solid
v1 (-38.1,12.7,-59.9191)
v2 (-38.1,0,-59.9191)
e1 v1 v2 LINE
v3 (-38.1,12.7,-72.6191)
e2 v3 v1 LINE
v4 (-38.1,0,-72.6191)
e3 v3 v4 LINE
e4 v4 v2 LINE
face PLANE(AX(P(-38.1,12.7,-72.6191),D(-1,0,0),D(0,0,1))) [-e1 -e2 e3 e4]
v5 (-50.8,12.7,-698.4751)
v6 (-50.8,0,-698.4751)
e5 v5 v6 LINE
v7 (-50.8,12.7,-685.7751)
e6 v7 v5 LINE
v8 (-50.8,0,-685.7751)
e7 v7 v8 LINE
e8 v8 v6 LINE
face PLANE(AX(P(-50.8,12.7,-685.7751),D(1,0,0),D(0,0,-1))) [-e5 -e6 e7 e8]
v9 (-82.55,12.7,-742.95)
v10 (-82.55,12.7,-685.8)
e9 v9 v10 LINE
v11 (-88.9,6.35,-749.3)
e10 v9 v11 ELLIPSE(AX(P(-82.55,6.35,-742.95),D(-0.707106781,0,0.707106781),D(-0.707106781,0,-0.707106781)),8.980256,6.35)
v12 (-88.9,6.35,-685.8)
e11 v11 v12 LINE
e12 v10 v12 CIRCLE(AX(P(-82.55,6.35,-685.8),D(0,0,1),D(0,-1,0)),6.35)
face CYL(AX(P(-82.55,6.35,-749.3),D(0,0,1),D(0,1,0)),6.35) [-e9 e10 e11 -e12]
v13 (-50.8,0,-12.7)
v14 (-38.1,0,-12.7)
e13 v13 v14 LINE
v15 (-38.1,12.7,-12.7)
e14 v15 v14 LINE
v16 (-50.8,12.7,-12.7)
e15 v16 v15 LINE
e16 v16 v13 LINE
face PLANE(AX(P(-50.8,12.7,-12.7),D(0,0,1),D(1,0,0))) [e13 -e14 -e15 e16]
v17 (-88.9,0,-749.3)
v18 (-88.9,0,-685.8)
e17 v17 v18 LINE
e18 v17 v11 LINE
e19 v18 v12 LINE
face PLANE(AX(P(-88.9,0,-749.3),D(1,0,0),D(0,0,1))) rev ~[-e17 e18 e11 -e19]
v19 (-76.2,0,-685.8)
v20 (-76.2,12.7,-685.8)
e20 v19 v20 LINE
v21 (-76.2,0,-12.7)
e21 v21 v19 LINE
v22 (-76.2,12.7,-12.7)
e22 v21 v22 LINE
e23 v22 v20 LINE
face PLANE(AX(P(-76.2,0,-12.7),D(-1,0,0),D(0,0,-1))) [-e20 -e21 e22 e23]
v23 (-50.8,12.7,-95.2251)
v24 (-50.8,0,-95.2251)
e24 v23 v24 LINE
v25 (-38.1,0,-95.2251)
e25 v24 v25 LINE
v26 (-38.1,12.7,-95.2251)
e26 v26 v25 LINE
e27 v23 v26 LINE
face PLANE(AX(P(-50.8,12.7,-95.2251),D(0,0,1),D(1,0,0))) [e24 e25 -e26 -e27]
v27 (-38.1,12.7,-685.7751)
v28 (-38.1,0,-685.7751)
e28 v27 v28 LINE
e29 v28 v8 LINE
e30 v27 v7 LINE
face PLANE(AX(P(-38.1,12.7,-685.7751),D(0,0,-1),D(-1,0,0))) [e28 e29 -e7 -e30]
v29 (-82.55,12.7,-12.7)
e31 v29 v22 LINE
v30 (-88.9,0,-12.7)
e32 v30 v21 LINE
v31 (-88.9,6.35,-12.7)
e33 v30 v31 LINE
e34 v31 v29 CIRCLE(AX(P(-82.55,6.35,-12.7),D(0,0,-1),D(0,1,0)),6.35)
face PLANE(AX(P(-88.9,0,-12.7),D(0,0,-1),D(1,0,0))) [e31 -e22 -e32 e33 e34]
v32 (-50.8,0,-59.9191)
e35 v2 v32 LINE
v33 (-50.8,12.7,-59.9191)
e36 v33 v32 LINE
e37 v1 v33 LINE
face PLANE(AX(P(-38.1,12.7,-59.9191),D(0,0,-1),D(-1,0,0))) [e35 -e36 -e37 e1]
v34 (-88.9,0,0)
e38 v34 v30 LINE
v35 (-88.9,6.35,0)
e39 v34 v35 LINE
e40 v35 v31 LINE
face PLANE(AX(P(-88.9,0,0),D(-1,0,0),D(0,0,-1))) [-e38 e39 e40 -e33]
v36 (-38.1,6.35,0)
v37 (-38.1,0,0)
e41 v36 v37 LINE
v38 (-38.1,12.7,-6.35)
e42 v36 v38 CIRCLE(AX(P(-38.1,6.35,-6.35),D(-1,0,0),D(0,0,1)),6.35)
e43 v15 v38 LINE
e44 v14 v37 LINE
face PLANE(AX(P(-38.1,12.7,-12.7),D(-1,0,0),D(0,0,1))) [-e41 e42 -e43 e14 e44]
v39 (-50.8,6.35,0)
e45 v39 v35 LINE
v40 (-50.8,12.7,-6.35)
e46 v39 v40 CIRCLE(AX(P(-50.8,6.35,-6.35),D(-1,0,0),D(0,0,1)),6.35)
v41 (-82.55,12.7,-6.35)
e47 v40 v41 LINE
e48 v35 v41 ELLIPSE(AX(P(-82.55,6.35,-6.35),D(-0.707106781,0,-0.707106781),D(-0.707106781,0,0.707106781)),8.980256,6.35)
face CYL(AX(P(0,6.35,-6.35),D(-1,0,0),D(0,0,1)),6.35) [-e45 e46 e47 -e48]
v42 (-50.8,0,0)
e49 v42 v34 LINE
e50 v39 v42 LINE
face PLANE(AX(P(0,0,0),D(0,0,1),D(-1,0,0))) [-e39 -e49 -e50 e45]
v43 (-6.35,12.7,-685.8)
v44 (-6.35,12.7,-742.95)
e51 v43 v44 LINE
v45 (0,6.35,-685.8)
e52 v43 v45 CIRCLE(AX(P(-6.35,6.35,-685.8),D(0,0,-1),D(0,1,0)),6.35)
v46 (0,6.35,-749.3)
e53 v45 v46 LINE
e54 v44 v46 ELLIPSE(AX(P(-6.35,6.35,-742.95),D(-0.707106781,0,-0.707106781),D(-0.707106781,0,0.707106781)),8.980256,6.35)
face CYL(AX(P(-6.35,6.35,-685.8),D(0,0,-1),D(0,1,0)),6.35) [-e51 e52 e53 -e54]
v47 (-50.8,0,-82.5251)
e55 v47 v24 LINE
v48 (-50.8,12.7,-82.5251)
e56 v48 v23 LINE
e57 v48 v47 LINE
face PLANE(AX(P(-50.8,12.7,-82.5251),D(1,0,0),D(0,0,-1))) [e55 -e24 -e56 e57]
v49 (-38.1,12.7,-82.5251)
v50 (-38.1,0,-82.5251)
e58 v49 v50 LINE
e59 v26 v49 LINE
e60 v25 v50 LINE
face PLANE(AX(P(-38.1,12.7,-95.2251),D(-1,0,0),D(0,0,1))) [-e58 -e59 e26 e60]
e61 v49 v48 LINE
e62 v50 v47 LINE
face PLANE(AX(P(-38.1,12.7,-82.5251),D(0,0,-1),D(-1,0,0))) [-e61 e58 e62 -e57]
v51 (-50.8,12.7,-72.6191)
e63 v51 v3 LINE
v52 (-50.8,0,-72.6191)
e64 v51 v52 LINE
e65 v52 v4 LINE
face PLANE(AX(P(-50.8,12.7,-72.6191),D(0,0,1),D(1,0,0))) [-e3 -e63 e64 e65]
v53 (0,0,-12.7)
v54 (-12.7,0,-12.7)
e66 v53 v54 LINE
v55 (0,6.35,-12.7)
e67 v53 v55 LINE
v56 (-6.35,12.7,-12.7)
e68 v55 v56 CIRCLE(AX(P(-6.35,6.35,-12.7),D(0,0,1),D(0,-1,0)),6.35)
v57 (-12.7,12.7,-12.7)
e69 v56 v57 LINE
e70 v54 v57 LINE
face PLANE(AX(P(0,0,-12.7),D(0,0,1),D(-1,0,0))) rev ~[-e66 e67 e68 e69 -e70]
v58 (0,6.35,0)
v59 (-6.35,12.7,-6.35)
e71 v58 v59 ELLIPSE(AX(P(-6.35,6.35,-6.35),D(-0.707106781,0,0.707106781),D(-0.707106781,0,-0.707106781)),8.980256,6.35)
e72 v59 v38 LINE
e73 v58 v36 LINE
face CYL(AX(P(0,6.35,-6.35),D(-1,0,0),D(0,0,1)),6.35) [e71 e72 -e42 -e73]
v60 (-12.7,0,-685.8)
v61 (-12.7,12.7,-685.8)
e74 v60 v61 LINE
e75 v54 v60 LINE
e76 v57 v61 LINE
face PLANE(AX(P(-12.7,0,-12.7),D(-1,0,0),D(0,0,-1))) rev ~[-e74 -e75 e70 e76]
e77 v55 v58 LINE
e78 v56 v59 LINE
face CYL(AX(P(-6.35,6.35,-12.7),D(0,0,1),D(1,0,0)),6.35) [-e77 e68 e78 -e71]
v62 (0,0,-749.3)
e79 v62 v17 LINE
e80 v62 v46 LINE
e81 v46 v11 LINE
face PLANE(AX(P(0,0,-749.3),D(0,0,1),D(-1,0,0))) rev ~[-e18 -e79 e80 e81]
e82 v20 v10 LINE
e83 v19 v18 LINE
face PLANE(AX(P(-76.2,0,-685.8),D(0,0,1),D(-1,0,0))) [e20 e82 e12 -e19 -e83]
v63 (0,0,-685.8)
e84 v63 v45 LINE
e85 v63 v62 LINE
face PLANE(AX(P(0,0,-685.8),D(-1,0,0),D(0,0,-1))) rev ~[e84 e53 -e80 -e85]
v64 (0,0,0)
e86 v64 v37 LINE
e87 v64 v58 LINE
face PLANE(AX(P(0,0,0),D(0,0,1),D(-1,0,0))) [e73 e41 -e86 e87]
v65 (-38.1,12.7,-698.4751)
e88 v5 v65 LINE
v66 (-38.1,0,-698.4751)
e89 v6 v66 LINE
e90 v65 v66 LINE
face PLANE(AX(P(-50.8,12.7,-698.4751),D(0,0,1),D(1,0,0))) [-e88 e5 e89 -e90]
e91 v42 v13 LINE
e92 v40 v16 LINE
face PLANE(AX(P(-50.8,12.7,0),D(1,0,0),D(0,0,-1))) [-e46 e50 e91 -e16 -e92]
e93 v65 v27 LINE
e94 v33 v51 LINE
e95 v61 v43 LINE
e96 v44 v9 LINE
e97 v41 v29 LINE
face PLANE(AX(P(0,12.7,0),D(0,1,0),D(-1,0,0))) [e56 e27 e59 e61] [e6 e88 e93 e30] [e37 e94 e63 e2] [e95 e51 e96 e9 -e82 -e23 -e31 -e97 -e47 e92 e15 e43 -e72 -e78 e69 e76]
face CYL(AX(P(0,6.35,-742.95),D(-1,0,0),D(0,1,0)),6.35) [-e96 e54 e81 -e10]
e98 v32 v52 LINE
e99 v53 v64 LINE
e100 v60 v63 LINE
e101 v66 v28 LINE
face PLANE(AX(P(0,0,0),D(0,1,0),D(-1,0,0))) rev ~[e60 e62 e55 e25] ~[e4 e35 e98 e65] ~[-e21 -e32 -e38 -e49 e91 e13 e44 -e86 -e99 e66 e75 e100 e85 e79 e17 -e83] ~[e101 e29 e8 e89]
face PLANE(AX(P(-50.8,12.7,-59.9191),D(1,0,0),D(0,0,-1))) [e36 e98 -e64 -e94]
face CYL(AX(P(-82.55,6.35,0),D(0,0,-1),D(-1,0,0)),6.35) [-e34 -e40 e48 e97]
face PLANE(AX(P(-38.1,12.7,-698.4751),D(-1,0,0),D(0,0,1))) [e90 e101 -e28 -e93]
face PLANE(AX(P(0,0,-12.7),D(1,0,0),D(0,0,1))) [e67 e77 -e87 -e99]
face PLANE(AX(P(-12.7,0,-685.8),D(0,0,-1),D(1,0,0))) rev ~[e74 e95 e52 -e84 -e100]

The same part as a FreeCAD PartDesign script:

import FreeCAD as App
import Part
import Sketcher
from FreeCAD import Vector
Q = App.Units.Quantity


def edges_at(feature, points):
    """Names of the edges that pass closest to the given points."""
    edges = feature.Shape.Edges
    near = lambda p: min(range(len(edges)), key=lambda i: edges[i].distToShape(Part.Vertex(*p))[0])
    return sorted({f"Edge{near(p) + 1}" for p in points})

doc = App.newDocument("Part")
body = doc.addObject("PartDesign::Body", "Body")

# Sketch on XZ plane
sketch1 = body.newObject("Sketcher::SketchObject", "Sketch")
sketch1.AttachmentSupport = (doc.getObject("XZ_Plane"), [""])
sketch1.MapMode = "FlatFace"
sketch1.addGeometry(Part.LineSegment(Vector(-89, 0, 0), Vector(0, 0, 0)), False)
sketch1.addGeometry(Part.LineSegment(Vector(0, 0, 0), Vector(0, -13, 0)), False)
sketch1.addGeometry(Part.LineSegment(Vector(0, -13, 0), Vector(-13, -13, 0)), False)
sketch1.addGeometry(Part.LineSegment(Vector(-13, -13, 0), Vector(-13, -686, 0)), False)
sketch1.addGeometry(Part.LineSegment(Vector(-13, -686, 0), Vector(0, -686, 0)), False)
sketch1.addGeometry(Part.LineSegment(Vector(0, -686, 0), Vector(0, -749, 0)), False)
sketch1.addGeometry(Part.LineSegment(Vector(0, -749, 0), Vector(-89, -749, 0)), False)
sketch1.addGeometry(Part.LineSegment(Vector(-89, -749, 0), Vector(-89, -686, 0)), False)
sketch1.addGeometry(Part.LineSegment(Vector(-89, -686, 0), Vector(-76, -686, 0)), False)
sketch1.addGeometry(Part.LineSegment(Vector(-76, -686, 0), Vector(-76, -13, 0)), False)
sketch1.addGeometry(Part.LineSegment(Vector(-76, -13, 0), Vector(-89, -13, 0)), False)
sketch1.addGeometry(Part.LineSegment(Vector(-89, -13, 0), Vector(-89, 0, 0)), False)
sketch1.addConstraint(Sketcher.Constraint("Coincident", 0, 2, 1, 1))
sketch1.addConstraint(Sketcher.Constraint("Coincident", 1, 2, 2, 1))
sketch1.addConstraint(Sketcher.Constraint("Coincident", 2, 2, 3, 1))
sketch1.addConstraint(Sketcher.Constraint("Coincident", 3, 2, 4, 1))
sketch1.addConstraint(Sketcher.Constraint("Coincident", 4, 2, 5, 1))
sketch1.addConstraint(Sketcher.Constraint("Coincident", 5, 2, 6, 1))
sketch1.addConstraint(Sketcher.Constraint("Coincident", 6, 2, 7, 1))
sketch1.addConstraint(Sketcher.Constraint("Coincident", 7, 2, 8, 1))
sketch1.addConstraint(Sketcher.Constraint("Coincident", 8, 2, 9, 1))
sketch1.addConstraint(Sketcher.Constraint("Coincident", 9, 2, 10, 1))
sketch1.addConstraint(Sketcher.Constraint("Coincident", 10, 2, 11, 1))
sketch1.addConstraint(Sketcher.Constraint("Coincident", 11, 2, 0, 1))
sketch1.addConstraint(Sketcher.Constraint("Horizontal", 0))
sketch1.addConstraint(Sketcher.Constraint("Vertical", 1))
sketch1.addConstraint(Sketcher.Constraint("Horizontal", 2))
sketch1.addConstraint(Sketcher.Constraint("Vertical", 3))
sketch1.addConstraint(Sketcher.Constraint("Horizontal", 4))
sketch1.addConstraint(Sketcher.Constraint("Vertical", 5))
sketch1.addConstraint(Sketcher.Constraint("Horizontal", 6))
sketch1.addConstraint(Sketcher.Constraint("Vertical", 7))
sketch1.addConstraint(Sketcher.Constraint("Horizontal", 8))
sketch1.addConstraint(Sketcher.Constraint("Vertical", 9))
sketch1.addConstraint(Sketcher.Constraint("Horizontal", 10))
sketch1.addConstraint(Sketcher.Constraint("Vertical", 11))
sketch1.addConstraint(Sketcher.Constraint("Coincident", 0, 2, -1, 1))
sketch1.addConstraint(Sketcher.Constraint("PointOnObject", 4, 2, -2))
sketch1.addConstraint(Sketcher.Constraint("Horizontal", 4, 2, 7, 2))
sketch1.addConstraint(Sketcher.Constraint("Horizontal", 2, 2, 9, 2))
sketch1.addConstraint(Sketcher.Constraint("Vertical", 7, 2, 10, 2))
sketch1.addConstraint(Sketcher.Constraint("Equal", 4, 8))
sketch1.addConstraint(Sketcher.Constraint("Equal", 10, 1))
sketch1.addConstraint(Sketcher.Constraint("DistanceX", 0, 1, 0, 2, Q("3.5 in")))
sketch1.addConstraint(Sketcher.Constraint("DistanceX", 2, 2, 2, 1, Q("0.5 in")))
sketch1.addConstraint(Sketcher.Constraint("DistanceY", 5, 2, 5, 1, Q("2.5 in")))
sketch1.addConstraint(Sketcher.Constraint("DistanceY", 3, 2, 3, 1, Q("26.5 in")))
pad1 = body.newObject("PartDesign::Pad", "Pad")
pad1.Profile = sketch1
pad1.Length = Q("0.5 in")
pad1.Reversed = True
doc.recompute()

fillet = body.newObject("PartDesign::Fillet", "Fillet")
fillet.Base = (pad1, edges_at(pad1, [(-44.45, 12.7, 0), (-88.9, 12.7, -6.35), (0, 12.7, -6.35)]))
fillet.Radius = Q("0.25 in")
doc.recompute()

fillet2 = body.newObject("PartDesign::Fillet", "Fillet001")
fillet2.Base = (fillet, edges_at(fillet, [(-44.45, 12.7, -749.3), (-88.9, 12.7, -717.55), (0, 12.7, -717.55)]))
fillet2.Radius = Q("0.25 in")

# Sketch on XZ plane
sketch2 = body.newObject("Sketcher::SketchObject", "Sketch001")
sketch2.AttachmentSupport = (doc.getObject("XZ_Plane"), [""])
sketch2.MapMode = "FlatFace"
sketch2.AttachmentOffset = App.Placement(Vector(0, 0, -0.5 * 25.4), App.Rotation())
sketch2.addGeometry(Part.LineSegment(Vector(-38, -698, 0), Vector(-51, -698, 0)), False)
sketch2.addGeometry(Part.LineSegment(Vector(-51, -698, 0), Vector(-51, -686, 0)), False)
sketch2.addGeometry(Part.LineSegment(Vector(-51, -686, 0), Vector(-38, -686, 0)), False)
sketch2.addGeometry(Part.LineSegment(Vector(-38, -686, 0), Vector(-38, -698, 0)), False)
sketch2.addGeometry(Part.LineSegment(Vector(-38, -95, 0), Vector(-51, -95, 0)), False)
sketch2.addGeometry(Part.LineSegment(Vector(-51, -95, 0), Vector(-51, -83, 0)), False)
sketch2.addGeometry(Part.LineSegment(Vector(-51, -83, 0), Vector(-38, -83, 0)), False)
sketch2.addGeometry(Part.LineSegment(Vector(-38, -83, 0), Vector(-38, -95, 0)), False)
sketch2.addGeometry(Part.LineSegment(Vector(-38, -73, 0), Vector(-51, -73, 0)), False)
sketch2.addGeometry(Part.LineSegment(Vector(-51, -73, 0), Vector(-51, -60, 0)), False)
sketch2.addGeometry(Part.LineSegment(Vector(-51, -60, 0), Vector(-38, -60, 0)), False)
sketch2.addGeometry(Part.LineSegment(Vector(-38, -60, 0), Vector(-38, -73, 0)), False)
sketch2.addGeometry(Part.LineSegment(Vector(-51, 0, 0), Vector(-38, 0, 0)), False)
sketch2.addGeometry(Part.LineSegment(Vector(-38, 0, 0), Vector(-38, -13, 0)), False)
sketch2.addGeometry(Part.LineSegment(Vector(-38, -13, 0), Vector(-51, -13, 0)), False)
sketch2.addGeometry(Part.LineSegment(Vector(-51, -13, 0), Vector(-51, 0, 0)), False)
sketch2.addConstraint(Sketcher.Constraint("Coincident", 0, 2, 1, 1))
sketch2.addConstraint(Sketcher.Constraint("Coincident", 1, 2, 2, 1))
sketch2.addConstraint(Sketcher.Constraint("Coincident", 2, 2, 3, 1))
sketch2.addConstraint(Sketcher.Constraint("Coincident", 3, 2, 0, 1))
sketch2.addConstraint(Sketcher.Constraint("Coincident", 4, 2, 5, 1))
sketch2.addConstraint(Sketcher.Constraint("Coincident", 5, 2, 6, 1))
sketch2.addConstraint(Sketcher.Constraint("Coincident", 6, 2, 7, 1))
sketch2.addConstraint(Sketcher.Constraint("Coincident", 7, 2, 4, 1))
sketch2.addConstraint(Sketcher.Constraint("Coincident", 8, 2, 9, 1))
sketch2.addConstraint(Sketcher.Constraint("Coincident", 9, 2, 10, 1))
sketch2.addConstraint(Sketcher.Constraint("Coincident", 10, 2, 11, 1))
sketch2.addConstraint(Sketcher.Constraint("Coincident", 11, 2, 8, 1))
sketch2.addConstraint(Sketcher.Constraint("Coincident", 12, 2, 13, 1))
sketch2.addConstraint(Sketcher.Constraint("Coincident", 13, 2, 14, 1))
sketch2.addConstraint(Sketcher.Constraint("Coincident", 14, 2, 15, 1))
sketch2.addConstraint(Sketcher.Constraint("Coincident", 15, 2, 12, 1))
sketch2.addConstraint(Sketcher.Constraint("Horizontal", 0))
sketch2.addConstraint(Sketcher.Constraint("Vertical", 1))
sketch2.addConstraint(Sketcher.Constraint("Horizontal", 2))
sketch2.addConstraint(Sketcher.Constraint("Vertical", 3))
sketch2.addConstraint(Sketcher.Constraint("Horizontal", 4))
sketch2.addConstraint(Sketcher.Constraint("Vertical", 5))
sketch2.addConstraint(Sketcher.Constraint("Horizontal", 6))
sketch2.addConstraint(Sketcher.Constraint("Vertical", 7))
sketch2.addConstraint(Sketcher.Constraint("Horizontal", 8))
sketch2.addConstraint(Sketcher.Constraint("Vertical", 9))
sketch2.addConstraint(Sketcher.Constraint("Horizontal", 10))
sketch2.addConstraint(Sketcher.Constraint("Vertical", 11))
sketch2.addConstraint(Sketcher.Constraint("Horizontal", 12))
sketch2.addConstraint(Sketcher.Constraint("Vertical", 13))
sketch2.addConstraint(Sketcher.Constraint("Horizontal", 14))
sketch2.addConstraint(Sketcher.Constraint("Vertical", 15))
sketch2.addConstraint(Sketcher.Constraint("PointOnObject", 12, 2, -1))
sketch2.addConstraint(Sketcher.Constraint("Vertical", 1, 2, 4, 2))
sketch2.addConstraint(Sketcher.Constraint("Vertical", 3, 2, 6, 2))
sketch2.addConstraint(Sketcher.Constraint("Vertical", 5, 2, 8, 2))
sketch2.addConstraint(Sketcher.Constraint("Vertical", 7, 2, 10, 2))
sketch2.addConstraint(Sketcher.Constraint("Vertical", 11, 2, 12, 2))
sketch2.addConstraint(Sketcher.Constraint("Vertical", 9, 2, 14, 2))
sketch2.addConstraint(Sketcher.Constraint("Equal", 14, 1))
sketch2.addConstraint(Sketcher.Constraint("Equal", 3, 5))
sketch2.addConstraint(Sketcher.Constraint("Equal", 7, 9))
sketch2.addConstraint(Sketcher.Constraint("Equal", 11, 13))
sketch2.addConstraint(Sketcher.Constraint("DistanceX", 0, 2, 0, 1, Q("0.5 in")))
sketch2.addConstraint(Sketcher.Constraint("DistanceX", 0, 2, -1, 1, Q("2 in")))
sketch2.addConstraint(Sketcher.Constraint("DistanceY", 1, 2, 4, 2, Q("23.25 in")))
sketch2.addConstraint(Sketcher.Constraint("DistanceY", 5, 2, 8, 2, Q("0.39 in")))
sketch2.addConstraint(Sketcher.Constraint("DistanceY", 0, 2, -1, 1, Q("698.475 mm")))
pocket1 = body.newObject("PartDesign::Pocket", "Pocket")
pocket1.Profile = sketch2
pocket1.Type = "ThroughAll"
pocket1.Midplane = True

doc.recompute()
